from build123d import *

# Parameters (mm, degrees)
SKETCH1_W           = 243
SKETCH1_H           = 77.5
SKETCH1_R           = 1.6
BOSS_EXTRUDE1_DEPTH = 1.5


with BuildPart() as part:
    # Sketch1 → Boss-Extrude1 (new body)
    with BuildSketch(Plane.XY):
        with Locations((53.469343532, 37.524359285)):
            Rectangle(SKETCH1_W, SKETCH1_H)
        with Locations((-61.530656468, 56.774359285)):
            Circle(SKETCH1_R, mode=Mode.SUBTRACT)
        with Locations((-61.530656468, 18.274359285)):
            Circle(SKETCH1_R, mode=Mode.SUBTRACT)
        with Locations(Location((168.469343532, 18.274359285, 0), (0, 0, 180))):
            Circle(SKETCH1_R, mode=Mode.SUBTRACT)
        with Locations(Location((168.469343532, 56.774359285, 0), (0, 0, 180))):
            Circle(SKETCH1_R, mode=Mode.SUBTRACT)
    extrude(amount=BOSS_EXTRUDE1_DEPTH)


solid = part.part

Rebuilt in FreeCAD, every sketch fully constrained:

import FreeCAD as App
import Part
import Sketcher

V = App.Vector


def add_polygon(sketch, points):
    """Adds a closed chain of lines whose ends are joined by coincident constraints."""
    first, n = sketch.GeometryCount, len(points)
    for a, b in zip(points, points[1:] + points[:1]):
        sketch.addGeometry(Part.LineSegment(App.Vector(*a, 0), App.Vector(*b, 0)), False)
    for i in range(n):
        sketch.addConstraint(Sketcher.Constraint("Coincident", first + i, 2, first + (i + 1) % n, 1))

doc = App.newDocument("Part")
body = doc.addObject("PartDesign::Body", "Body")

# Sketch on XY plane
sketch1 = body.newObject("Sketcher::SketchObject", "Sketch")
sketch1.AttachmentSupport = (doc.getObject("XY_Plane"), [""])
sketch1.MapMode = "FlatFace"
add_polygon(sketch1, [(-68, 76.3), (-68, -1.2), (175, -1.2), (175, 76.3)])  # lines 0-3
sketch1.addGeometry(Part.Circle(V(-61.5, 18.3, 0), V(0, 0, 1), 1.6), False)  # 4
sketch1.addGeometry(Part.Circle(V(168.5, 18.3, 0), V(0, 0, 1), 1.6), False)  # 5
sketch1.addGeometry(Part.Circle(V(-61.5, 56.8, 0), V(0, 0, 1), 1.6), False)  # 6
sketch1.addGeometry(Part.Circle(V(168.5, 56.8, 0), V(0, 0, 1), 1.6), False)  # 7
sketch1.addConstraint([
    Sketcher.Constraint("Vertical", 0),
    Sketcher.Constraint("Horizontal", 1),
    Sketcher.Constraint("Vertical", 2),
    Sketcher.Constraint("Horizontal", 3),
    Sketcher.Constraint("Equal", 4, 5),
    Sketcher.Constraint("Equal", 5, 6),
    Sketcher.Constraint("Equal", 6, 7),
    Sketcher.Constraint("Horizontal", 4, 3, 5, 3),
    Sketcher.Constraint("Horizontal", 6, 3, 7, 3),
    Sketcher.Constraint("Vertical", 4, 3, 6, 3),
    Sketcher.Constraint("Vertical", 5, 3, 7, 3),
    Sketcher.Constraint("Diameter", 4, 3.2),
    Sketcher.Constraint("DistanceX", 1, 1, 1, 2, 243.0),
    Sketcher.Constraint("DistanceY", 0, 2, 0, 1, 77.5),
    Sketcher.Constraint("DistanceX", 4, 3, 5, 3, 230.0),
    Sketcher.Constraint("DistanceY", 0, 2, 6, 3, 58.0),
    Sketcher.Constraint("DistanceY", 5, 3, 2, 2, 58.0),
    Sketcher.Constraint("DistanceX", 0, 2, 4, 3, 6.5),
    Sketcher.Constraint("DistanceY", -1, 1, 4, 3, 18.274359),
    Sketcher.Constraint("DistanceX", 4, 3, -1, 1, 61.530656),
])
pad1 = body.newObject("PartDesign::Pad", "Pad")
pad1.Profile = sketch1
pad1.Length = 1.5

doc.recompute()
